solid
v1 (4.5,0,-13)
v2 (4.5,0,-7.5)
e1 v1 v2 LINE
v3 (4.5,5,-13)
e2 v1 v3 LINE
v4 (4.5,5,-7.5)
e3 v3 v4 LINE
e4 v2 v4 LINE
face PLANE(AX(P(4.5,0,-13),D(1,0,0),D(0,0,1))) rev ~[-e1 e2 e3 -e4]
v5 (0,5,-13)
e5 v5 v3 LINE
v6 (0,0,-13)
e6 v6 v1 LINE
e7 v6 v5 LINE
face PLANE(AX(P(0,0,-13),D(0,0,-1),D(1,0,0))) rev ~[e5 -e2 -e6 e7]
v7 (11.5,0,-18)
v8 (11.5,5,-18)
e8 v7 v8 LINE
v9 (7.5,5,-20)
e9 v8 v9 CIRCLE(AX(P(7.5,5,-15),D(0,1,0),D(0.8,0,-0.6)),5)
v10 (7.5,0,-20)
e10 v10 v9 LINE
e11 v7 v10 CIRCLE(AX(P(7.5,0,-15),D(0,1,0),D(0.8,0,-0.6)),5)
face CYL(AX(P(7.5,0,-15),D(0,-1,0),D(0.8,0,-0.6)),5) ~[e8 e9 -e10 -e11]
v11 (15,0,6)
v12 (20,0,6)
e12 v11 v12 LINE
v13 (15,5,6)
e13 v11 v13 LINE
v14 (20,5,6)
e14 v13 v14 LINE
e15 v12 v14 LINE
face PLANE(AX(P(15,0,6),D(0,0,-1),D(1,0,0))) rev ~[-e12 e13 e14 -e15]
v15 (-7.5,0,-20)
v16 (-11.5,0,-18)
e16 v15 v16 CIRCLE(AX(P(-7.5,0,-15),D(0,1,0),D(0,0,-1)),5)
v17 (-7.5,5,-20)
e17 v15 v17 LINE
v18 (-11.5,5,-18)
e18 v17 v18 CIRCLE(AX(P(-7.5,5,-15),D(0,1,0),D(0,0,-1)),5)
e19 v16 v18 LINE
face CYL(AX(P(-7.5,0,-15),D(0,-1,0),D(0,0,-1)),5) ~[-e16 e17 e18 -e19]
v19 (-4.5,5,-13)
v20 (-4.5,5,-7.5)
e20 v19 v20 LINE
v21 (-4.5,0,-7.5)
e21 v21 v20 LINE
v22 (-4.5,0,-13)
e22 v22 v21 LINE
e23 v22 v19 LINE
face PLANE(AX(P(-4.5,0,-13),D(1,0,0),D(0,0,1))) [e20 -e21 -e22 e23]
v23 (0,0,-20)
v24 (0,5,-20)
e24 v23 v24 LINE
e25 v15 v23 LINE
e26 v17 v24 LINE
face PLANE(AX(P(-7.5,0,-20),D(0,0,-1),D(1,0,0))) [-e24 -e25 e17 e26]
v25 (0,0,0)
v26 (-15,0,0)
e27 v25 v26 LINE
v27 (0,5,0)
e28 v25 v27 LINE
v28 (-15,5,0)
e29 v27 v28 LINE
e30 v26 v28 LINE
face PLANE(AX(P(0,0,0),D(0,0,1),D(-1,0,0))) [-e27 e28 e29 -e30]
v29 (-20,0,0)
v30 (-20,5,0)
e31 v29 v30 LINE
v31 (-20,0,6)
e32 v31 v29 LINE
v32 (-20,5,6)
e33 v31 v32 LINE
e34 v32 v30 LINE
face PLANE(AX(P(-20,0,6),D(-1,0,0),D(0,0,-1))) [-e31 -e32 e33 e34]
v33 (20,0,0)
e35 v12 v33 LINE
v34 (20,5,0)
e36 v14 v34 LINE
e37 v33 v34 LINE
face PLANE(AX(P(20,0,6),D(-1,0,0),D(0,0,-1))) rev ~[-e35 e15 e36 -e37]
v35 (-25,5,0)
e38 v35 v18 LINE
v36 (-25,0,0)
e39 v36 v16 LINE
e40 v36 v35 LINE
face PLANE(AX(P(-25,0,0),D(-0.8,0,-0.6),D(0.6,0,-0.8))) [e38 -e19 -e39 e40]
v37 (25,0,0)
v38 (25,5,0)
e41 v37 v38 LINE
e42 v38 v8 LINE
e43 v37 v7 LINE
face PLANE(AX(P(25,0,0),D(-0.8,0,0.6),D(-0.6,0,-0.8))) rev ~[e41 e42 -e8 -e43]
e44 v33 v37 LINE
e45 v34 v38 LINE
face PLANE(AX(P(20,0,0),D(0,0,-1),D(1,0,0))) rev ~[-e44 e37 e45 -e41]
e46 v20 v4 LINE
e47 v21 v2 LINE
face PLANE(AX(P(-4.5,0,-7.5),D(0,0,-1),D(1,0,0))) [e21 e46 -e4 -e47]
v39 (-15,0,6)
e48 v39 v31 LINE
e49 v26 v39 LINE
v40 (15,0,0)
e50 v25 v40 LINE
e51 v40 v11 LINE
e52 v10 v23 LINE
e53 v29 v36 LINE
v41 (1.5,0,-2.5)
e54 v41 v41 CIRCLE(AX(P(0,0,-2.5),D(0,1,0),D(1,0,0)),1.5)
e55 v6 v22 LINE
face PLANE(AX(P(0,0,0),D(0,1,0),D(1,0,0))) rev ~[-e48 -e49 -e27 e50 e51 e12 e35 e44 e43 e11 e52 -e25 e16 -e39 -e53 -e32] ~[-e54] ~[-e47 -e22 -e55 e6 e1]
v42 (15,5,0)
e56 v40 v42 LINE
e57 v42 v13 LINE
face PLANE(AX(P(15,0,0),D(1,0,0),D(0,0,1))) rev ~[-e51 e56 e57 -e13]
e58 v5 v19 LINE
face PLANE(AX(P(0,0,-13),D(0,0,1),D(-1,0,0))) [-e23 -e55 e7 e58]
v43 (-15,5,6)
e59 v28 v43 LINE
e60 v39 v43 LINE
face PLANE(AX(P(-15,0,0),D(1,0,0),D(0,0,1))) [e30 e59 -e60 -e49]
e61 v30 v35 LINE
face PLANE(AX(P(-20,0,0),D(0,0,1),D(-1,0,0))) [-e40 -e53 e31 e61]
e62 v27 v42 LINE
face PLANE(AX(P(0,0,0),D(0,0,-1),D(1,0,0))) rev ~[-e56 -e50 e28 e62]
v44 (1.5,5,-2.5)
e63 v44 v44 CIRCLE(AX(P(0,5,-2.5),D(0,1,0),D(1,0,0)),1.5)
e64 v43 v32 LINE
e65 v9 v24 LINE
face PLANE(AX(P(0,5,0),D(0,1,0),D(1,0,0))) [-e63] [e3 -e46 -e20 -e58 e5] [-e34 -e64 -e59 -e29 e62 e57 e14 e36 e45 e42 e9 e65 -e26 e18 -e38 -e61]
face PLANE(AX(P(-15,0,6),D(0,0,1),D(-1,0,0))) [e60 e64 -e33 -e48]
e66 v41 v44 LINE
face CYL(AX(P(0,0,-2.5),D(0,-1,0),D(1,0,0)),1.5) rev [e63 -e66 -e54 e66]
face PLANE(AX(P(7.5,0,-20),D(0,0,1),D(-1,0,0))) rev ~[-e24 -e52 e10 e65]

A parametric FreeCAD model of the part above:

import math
import FreeCAD as App
import Part
import Sketcher

V = App.Vector

doc = App.newDocument("Part")
body = doc.addObject("PartDesign::Body", "Body")

sketch1 = body.newObject("Sketcher::SketchObject", "Sketch")
sketch1.AttachmentSupport = (doc.getObject("XZ_Plane"), [""])
sketch1.MapMode = "FlatFace"
sketch1.addGeometry([
    Part.LineSegment(V(-15, 0, 0), V(15, 0, 0)),
    Part.LineSegment(V(15, 0, 0), V(15, 6, 0)),
    Part.LineSegment(V(15, 6, 0), V(20, 6, 0)),
    Part.LineSegment(V(20, 6, 0), V(20, 0, 0)),
    Part.LineSegment(V(20, 0, 0), V(25, 0, 0)),
    Part.LineSegment(V(25, 0, 0), V(11.5, -18, 0)),
    Part.ArcOfCircle(Part.Circle(V(7.5, -15, 0), V(0, 0, 1), 5), math.radians(-90), math.radians(-37)),
    Part.LineSegment(V(7.5, -20, 0), V(-7.5, -20, 0)),
    Part.ArcOfCircle(Part.Circle(V(-7.5, -15, 0), V(0, 0, 1), 5), math.radians(-143), math.radians(-90)),
    Part.LineSegment(V(-11.5, -18, 0), V(-25, 0, 0)),
    Part.LineSegment(V(-25, 0, 0), V(-20, 0, 0)),
    Part.LineSegment(V(-20, 0, 0), V(-20, 6, 0)),
    Part.LineSegment(V(-20, 6, 0), V(-15, 6, 0)),
    Part.LineSegment(V(-15, 6, 0), V(-15, 0, 0)),
    Part.Circle(V(0, -2.5, 0), V(0, 0, 1), 1.5),
    Part.LineSegment(V(-4.5, -13, 0), V(4.5, -13, 0)),
    Part.LineSegment(V(4.5, -13, 0), V(4.5, -7.5, 0)),
    Part.LineSegment(V(4.5, -7.5, 0), V(-4.5, -7.5, 0)),
    Part.LineSegment(V(-4.5, -7.5, 0), V(-4.5, -13, 0)),
], False)
sketch1.addConstraint([
    Sketcher.Constraint("Coincident", 0, 2, 1, 1),
    Sketcher.Constraint("Coincident", 1, 2, 2, 1),
    Sketcher.Constraint("Coincident", 2, 2, 3, 1),
    Sketcher.Constraint("Coincident", 3, 2, 4, 1),
    Sketcher.Constraint("Coincident", 4, 2, 5, 1),
    Sketcher.Constraint("Tangent", 5, 2, 6, 2),
    Sketcher.Constraint("Tangent", 6, 1, 7, 1),
    Sketcher.Constraint("Tangent", 7, 2, 8, 2),
    Sketcher.Constraint("Tangent", 8, 1, 9, 1),
    Sketcher.Constraint("Coincident", 9, 2, 10, 1),
    Sketcher.Constraint("Coincident", 10, 2, 11, 1),
    Sketcher.Constraint("Coincident", 11, 2, 12, 1),
    Sketcher.Constraint("Coincident", 12, 2, 13, 1),
    Sketcher.Constraint("Coincident", 13, 2, 0, 1),
    Sketcher.Constraint("Coincident", 15, 2, 16, 1),
    Sketcher.Constraint("Coincident", 16, 2, 17, 1),
    Sketcher.Constraint("Coincident", 17, 2, 18, 1),
    Sketcher.Constraint("Coincident", 18, 2, 15, 1),
    Sketcher.Constraint("Horizontal", 0),
    Sketcher.Constraint("Vertical", 1),
    Sketcher.Constraint("Horizontal", 2),
    Sketcher.Constraint("Vertical", 3),
    Sketcher.Constraint("Horizontal", 4),
    Sketcher.Constraint("Horizontal", 7),
    Sketcher.Constraint("Horizontal", 10),
    Sketcher.Constraint("Vertical", 11),
    Sketcher.Constraint("Horizontal", 12),
    Sketcher.Constraint("Vertical", 13),
    Sketcher.Constraint("Horizontal", 15),
    Sketcher.Constraint("Vertical", 16),
    Sketcher.Constraint("Horizontal", 17),
    Sketcher.Constraint("Vertical", 18),
    Sketcher.Constraint("Equal", 6, 8),
    Sketcher.Constraint("Symmetric", 4, 2, 9, 2, -1, 1),
    Sketcher.Constraint("Symmetric", 0, 2, 13, 2, -1, 1),
    Sketcher.Constraint("Symmetric", 5, 2, 8, 1, -2),
    Sketcher.Constraint("Symmetric", 2, 2, 11, 2, -2),
    Sketcher.Constraint("PointOnObject", 14, 3, -2),
    Sketcher.Constraint("Equal", 2, 4),
    Sketcher.Constraint("Diameter", 14, 3.0),
    Sketcher.Constraint("Radius", 6, 5.0),
    Sketcher.Constraint("DistanceX", 2, 1, 2, 2, 5.0),
    Sketcher.Constraint("DistanceY", 5, 2, 6, 3, 3.0),
    Sketcher.Constraint("DistanceX", 15, 2, 6, 3, 3.0),
    Sketcher.Constraint("DistanceY", 5, 2, 15, 2, 5.0),
    Sketcher.Constraint("DistanceY", 16, 2, 14, 3, 5.0),
    Sketcher.Constraint("DistanceX", 8, 3, 17, 2, 3.0),
    Sketcher.Constraint("DistanceY", 14, 3, -1, 1, 2.5),
    Sketcher.Constraint("DistanceX", 0, 1, 0, 2, 30.0),
    Sketcher.Constraint("DistanceX", 7, 2, 7, 1, 15.0),
    Sketcher.Constraint("DistanceY", 1, 1, 1, 2, 6.0),
])
pad1 = body.newObject("PartDesign::Pad", "Pad")
pad1.Profile = sketch1
pad1.Length = 5
pad1.Reversed = True

doc.recompute()
